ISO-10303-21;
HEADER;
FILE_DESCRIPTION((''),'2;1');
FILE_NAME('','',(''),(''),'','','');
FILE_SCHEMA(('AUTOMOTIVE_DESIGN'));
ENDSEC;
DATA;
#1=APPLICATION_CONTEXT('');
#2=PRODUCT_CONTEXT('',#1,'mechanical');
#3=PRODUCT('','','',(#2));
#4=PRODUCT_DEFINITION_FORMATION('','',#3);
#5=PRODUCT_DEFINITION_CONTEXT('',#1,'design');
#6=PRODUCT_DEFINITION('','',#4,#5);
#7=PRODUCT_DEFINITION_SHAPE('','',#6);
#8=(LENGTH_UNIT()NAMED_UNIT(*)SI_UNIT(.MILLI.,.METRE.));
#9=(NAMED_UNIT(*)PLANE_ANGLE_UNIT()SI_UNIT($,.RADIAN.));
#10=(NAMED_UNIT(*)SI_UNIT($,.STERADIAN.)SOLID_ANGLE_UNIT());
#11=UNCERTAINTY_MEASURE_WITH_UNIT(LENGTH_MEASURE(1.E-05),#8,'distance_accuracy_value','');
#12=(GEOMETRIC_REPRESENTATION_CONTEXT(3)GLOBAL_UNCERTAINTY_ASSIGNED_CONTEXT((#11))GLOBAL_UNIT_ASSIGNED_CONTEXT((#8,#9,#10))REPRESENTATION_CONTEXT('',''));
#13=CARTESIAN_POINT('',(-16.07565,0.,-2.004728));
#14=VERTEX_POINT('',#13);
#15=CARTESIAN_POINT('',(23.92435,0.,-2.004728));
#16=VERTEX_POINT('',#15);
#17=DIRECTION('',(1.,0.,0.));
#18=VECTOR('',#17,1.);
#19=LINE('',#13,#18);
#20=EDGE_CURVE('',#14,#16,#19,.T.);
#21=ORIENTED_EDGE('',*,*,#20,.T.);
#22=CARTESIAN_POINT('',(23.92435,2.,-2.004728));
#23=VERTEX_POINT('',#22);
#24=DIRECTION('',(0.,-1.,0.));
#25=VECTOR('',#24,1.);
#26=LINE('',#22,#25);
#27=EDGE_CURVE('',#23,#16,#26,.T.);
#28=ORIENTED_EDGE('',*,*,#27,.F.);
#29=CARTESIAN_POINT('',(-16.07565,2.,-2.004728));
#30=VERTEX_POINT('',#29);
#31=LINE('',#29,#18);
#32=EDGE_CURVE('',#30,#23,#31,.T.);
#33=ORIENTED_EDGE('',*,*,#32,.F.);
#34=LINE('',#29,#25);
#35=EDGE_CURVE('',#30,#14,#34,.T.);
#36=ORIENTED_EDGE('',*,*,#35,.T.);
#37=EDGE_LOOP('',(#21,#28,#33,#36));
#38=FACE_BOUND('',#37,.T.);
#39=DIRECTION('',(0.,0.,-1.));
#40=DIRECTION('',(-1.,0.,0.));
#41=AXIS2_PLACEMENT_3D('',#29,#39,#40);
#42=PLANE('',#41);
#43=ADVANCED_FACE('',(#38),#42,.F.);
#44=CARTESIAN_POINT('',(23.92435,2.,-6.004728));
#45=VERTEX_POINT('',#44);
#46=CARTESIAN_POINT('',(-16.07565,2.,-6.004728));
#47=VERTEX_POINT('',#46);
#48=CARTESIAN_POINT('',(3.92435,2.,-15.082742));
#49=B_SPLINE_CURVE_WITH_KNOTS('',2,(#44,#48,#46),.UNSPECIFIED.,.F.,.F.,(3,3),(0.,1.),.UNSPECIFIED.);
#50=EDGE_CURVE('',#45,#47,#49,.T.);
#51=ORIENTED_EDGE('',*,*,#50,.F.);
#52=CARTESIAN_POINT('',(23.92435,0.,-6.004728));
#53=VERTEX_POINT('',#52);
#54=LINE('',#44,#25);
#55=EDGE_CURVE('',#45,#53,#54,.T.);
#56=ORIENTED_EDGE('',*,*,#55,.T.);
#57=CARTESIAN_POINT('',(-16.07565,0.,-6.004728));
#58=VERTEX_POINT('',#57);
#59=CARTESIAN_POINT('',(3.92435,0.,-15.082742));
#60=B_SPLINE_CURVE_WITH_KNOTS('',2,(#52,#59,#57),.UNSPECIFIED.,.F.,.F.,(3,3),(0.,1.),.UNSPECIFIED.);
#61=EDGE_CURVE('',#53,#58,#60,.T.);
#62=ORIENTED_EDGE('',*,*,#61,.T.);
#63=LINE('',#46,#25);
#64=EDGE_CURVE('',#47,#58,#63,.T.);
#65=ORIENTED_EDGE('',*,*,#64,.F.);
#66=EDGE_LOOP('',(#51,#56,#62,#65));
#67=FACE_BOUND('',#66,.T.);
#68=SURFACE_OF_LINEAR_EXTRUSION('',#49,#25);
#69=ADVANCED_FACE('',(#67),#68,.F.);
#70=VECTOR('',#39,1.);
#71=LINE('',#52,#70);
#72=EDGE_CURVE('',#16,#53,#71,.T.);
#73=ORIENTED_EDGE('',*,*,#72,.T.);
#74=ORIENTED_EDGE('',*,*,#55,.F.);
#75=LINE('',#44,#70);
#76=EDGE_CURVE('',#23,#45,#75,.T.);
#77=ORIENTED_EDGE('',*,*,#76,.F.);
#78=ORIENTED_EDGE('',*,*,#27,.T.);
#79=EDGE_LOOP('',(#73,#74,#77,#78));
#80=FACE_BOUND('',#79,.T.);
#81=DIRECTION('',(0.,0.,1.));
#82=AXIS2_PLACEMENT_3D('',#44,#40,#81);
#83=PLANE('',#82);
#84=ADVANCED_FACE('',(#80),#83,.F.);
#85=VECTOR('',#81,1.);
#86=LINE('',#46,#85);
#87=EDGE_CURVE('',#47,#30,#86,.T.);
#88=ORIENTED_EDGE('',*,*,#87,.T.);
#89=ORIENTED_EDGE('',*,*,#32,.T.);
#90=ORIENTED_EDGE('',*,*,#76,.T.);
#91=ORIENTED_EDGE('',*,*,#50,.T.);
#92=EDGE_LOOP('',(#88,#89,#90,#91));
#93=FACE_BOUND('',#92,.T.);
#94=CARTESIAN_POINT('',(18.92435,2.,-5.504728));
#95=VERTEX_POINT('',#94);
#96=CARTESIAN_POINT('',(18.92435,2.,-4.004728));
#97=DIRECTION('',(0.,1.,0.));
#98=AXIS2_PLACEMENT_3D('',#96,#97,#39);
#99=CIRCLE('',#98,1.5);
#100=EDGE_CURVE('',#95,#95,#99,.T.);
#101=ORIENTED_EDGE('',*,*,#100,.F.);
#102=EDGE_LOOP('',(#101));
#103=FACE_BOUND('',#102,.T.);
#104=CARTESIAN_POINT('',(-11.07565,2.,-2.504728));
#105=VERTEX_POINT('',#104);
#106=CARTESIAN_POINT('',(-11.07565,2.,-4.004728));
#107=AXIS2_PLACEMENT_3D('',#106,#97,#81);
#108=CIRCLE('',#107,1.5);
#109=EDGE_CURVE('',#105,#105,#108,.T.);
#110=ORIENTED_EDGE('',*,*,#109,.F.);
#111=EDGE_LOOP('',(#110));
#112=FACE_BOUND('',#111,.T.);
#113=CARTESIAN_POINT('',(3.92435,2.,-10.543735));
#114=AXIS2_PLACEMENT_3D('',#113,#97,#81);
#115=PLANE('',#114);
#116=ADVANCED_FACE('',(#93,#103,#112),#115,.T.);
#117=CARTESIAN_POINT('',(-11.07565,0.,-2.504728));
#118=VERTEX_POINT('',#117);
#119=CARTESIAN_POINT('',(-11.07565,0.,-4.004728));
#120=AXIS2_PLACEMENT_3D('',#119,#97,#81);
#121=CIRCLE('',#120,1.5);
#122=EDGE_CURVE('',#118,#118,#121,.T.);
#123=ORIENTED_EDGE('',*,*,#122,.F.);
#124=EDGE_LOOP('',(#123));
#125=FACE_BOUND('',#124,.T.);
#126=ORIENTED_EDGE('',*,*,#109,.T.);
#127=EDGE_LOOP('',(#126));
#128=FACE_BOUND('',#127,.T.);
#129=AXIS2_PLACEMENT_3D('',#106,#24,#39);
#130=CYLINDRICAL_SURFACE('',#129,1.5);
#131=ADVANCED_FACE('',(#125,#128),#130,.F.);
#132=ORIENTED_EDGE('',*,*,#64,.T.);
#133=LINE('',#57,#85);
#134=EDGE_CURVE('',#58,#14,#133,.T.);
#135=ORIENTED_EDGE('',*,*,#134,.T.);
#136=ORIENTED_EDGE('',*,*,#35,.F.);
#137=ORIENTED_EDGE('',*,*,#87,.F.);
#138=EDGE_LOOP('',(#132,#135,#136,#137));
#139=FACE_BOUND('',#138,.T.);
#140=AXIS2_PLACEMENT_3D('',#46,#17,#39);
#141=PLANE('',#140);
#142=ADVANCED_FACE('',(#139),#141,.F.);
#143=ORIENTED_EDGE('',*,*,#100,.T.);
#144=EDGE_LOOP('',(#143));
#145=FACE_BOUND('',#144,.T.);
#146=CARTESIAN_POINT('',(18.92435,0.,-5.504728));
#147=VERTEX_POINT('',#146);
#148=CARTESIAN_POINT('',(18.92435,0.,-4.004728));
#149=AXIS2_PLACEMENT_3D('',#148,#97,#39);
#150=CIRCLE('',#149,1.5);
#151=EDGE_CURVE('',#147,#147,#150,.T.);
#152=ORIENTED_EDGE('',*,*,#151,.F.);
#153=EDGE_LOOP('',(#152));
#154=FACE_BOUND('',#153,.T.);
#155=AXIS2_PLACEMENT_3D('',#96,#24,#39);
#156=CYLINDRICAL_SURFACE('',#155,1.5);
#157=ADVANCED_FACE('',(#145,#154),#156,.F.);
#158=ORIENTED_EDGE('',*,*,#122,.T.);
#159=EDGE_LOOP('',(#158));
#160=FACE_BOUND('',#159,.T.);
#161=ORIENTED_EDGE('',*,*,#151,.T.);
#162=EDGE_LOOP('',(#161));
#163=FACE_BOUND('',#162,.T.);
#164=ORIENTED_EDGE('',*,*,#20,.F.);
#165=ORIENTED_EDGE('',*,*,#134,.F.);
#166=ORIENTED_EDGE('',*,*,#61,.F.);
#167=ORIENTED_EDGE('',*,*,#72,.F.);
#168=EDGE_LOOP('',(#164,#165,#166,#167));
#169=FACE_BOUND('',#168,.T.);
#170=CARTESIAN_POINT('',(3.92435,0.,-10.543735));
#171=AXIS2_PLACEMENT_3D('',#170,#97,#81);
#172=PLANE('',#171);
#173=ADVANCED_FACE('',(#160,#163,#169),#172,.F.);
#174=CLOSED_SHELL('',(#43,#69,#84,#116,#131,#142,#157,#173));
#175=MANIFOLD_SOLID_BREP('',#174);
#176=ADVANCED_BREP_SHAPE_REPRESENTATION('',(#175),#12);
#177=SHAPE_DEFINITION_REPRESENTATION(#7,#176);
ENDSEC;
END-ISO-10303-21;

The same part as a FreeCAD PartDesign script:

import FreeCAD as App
import Part
import Sketcher
Q = App.Units.Quantity

doc = App.newDocument("Part")
body = doc.addObject("PartDesign::Body", "Body")

sketch1 = body.newObject("Sketcher::SketchObject", "Sketch")
sketch1.AttachmentSupport = (doc.getObject("XZ_Plane"), [""])
sketch1.MapMode = "FlatFace"
sketch1.addGeometry(Part.LineSegment(App.Vector(-16.07565, -6.004728, 0), App.Vector(-16.07565, -2.004728, 0)), False)
sketch1.addGeometry(Part.LineSegment(App.Vector(-16.07565, -2.004728, 0), App.Vector(23.92435, -2.004728, 0)), False)
sketch1.addGeometry(Part.LineSegment(App.Vector(23.92435, -2.004728, 0), App.Vector(23.92435, -6.004728, 0)), False)
sketch1.addGeometry(Part.BSplineCurve([App.Vector(-16.07565, -6.004728, 0), App.Vector(3.92435, -15.082742, 0), App.Vector(23.92435, -6.004728, 0)], [3, 3], [0, 1], False, 2, [1, 1, 1], False), False)
sketch1.addGeometry(Part.Circle(App.Vector(-11.07565, -4.004728, 0), App.Vector(0, 0, 1), 1.5), False)
sketch1.addGeometry(Part.Circle(App.Vector(18.92435, -4.004728, 0), App.Vector(0, 0, 1), 1.5), False)
sketch1.addConstraint(Sketcher.Constraint("Block", 3))
sketch1.addConstraint(Sketcher.Constraint("Coincident", 0, 2, 1, 1))
sketch1.addConstraint(Sketcher.Constraint("Coincident", 1, 2, 2, 1))
sketch1.addConstraint(Sketcher.Constraint("Coincident", 2, 2, 3, 2))
sketch1.addConstraint(Sketcher.Constraint("Coincident", 3, 1, 0, 1))
sketch1.addConstraint(Sketcher.Constraint("Vertical", 0))
sketch1.addConstraint(Sketcher.Constraint("Horizontal", 1))
sketch1.addConstraint(Sketcher.Constraint("Vertical", 2))
sketch1.addConstraint(Sketcher.Constraint("Equal", 4, 5))
sketch1.addConstraint(Sketcher.Constraint("Horizontal", 4, 3, 5, 3))
sketch1.addConstraint(Sketcher.Constraint("Diameter", 4, Q("3 mm")))
sketch1.addConstraint(Sketcher.Constraint("DistanceY", 0, 1, 0, 2, Q("4 mm")))
sketch1.addConstraint(Sketcher.Constraint("DistanceX", 4, 3, 5, 3, Q("30 mm")))
sketch1.addConstraint(Sketcher.Constraint("DistanceX", 0, 2, 4, 3, Q("5 mm")))
sketch1.addConstraint(Sketcher.Constraint("DistanceY", 4, 3, 0, 2, Q("2 mm")))
pad1 = body.newObject("PartDesign::Pad", "Pad")
pad1.Profile = sketch1
pad1.Length = 2
pad1.Reversed = True

doc.recompute()
